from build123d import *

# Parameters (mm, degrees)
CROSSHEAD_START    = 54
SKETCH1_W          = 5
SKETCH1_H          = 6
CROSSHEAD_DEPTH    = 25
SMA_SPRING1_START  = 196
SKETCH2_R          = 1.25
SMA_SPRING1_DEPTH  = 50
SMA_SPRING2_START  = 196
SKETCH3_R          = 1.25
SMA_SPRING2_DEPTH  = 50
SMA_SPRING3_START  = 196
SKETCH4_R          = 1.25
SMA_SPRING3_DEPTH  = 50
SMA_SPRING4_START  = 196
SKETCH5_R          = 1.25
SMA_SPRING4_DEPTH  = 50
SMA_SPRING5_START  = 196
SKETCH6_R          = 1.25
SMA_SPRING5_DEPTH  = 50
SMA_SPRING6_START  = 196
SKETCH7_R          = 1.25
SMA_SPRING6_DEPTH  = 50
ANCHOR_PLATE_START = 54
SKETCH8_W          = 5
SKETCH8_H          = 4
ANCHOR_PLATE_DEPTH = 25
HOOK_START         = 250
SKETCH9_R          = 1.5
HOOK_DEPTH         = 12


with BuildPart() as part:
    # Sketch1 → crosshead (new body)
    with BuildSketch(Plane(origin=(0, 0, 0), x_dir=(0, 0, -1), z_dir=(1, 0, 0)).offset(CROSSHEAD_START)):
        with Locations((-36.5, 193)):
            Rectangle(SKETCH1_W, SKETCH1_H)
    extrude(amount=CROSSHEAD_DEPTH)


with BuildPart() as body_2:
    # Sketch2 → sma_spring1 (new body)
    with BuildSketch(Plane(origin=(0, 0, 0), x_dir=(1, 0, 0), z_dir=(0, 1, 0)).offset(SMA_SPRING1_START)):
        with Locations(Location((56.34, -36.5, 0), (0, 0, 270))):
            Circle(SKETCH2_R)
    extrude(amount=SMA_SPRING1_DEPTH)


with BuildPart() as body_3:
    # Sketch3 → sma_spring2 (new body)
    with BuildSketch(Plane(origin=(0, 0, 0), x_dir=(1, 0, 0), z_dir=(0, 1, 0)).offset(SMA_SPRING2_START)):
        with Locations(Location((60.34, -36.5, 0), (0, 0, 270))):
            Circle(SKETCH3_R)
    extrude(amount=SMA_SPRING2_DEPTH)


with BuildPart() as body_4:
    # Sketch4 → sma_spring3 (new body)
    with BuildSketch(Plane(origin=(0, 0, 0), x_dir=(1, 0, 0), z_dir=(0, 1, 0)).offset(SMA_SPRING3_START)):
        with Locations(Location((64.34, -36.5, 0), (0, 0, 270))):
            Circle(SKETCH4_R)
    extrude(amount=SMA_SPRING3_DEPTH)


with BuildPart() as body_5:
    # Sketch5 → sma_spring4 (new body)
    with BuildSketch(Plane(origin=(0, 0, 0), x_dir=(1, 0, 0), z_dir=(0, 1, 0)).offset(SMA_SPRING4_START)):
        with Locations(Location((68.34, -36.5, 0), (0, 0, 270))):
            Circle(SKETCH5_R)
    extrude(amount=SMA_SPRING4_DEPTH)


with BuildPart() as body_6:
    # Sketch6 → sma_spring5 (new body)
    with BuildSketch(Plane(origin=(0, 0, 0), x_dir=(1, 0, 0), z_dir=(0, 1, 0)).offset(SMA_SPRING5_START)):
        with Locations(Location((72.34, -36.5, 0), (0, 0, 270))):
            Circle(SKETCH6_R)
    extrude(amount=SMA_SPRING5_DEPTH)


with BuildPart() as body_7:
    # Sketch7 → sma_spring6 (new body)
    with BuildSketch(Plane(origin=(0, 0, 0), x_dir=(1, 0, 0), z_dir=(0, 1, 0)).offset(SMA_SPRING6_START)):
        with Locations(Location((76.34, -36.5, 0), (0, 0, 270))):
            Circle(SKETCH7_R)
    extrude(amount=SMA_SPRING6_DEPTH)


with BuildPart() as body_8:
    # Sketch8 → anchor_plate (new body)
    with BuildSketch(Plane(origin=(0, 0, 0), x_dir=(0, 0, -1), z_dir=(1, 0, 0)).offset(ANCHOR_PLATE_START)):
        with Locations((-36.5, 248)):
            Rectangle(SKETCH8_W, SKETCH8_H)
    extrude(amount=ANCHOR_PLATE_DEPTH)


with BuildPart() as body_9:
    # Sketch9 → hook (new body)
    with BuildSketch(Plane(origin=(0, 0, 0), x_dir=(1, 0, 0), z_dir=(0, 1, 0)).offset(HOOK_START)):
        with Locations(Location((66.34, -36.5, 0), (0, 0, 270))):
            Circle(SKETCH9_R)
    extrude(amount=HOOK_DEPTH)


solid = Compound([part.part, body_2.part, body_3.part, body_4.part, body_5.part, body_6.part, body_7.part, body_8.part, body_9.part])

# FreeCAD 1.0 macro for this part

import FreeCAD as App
import Part
import Sketcher

doc = App.newDocument("Part")
body = doc.addObject("PartDesign::Body", "Body")

# Sketch on YZ plane
sketch1 = body.newObject("Sketcher::SketchObject", "Sketch")
sketch1.AttachmentSupport = (doc.getObject("YZ_Plane"), [""])
sketch1.MapMode = "FlatFace"
sketch1.AttachmentOffset = App.Placement(App.Vector(0, 0, 54), App.Rotation())
sketch1.addGeometry(Part.LineSegment(App.Vector(196, 39, 0), App.Vector(190, 39, 0)), False)
sketch1.addGeometry(Part.LineSegment(App.Vector(190, 39, 0), App.Vector(190, 34, 0)), False)
sketch1.addGeometry(Part.LineSegment(App.Vector(190, 34, 0), App.Vector(196, 34, 0)), False)
sketch1.addGeometry(Part.LineSegment(App.Vector(196, 34, 0), App.Vector(196, 39, 0)), False)
sketch1.addConstraint(Sketcher.Constraint("Coincident", 0, 2, 1, 1))
sketch1.addConstraint(Sketcher.Constraint("Coincident", 1, 2, 2, 1))
sketch1.addConstraint(Sketcher.Constraint("Coincident", 2, 2, 3, 1))
sketch1.addConstraint(Sketcher.Constraint("Coincident", 3, 2, 0, 1))
sketch1.addConstraint(Sketcher.Constraint("Horizontal", 0))
sketch1.addConstraint(Sketcher.Constraint("Vertical", 1))
sketch1.addConstraint(Sketcher.Constraint("Horizontal", 2))
sketch1.addConstraint(Sketcher.Constraint("Vertical", 3))
sketch1.addConstraint(Sketcher.Constraint("DistanceX", 0, 2, 0, 1, 6.0))
sketch1.addConstraint(Sketcher.Constraint("DistanceY", 1, 2, 1, 1, 5.0))
sketch1.addConstraint(Sketcher.Constraint("DistanceX", -1, 1, 0, 2, 190.0))
sketch1.addConstraint(Sketcher.Constraint("DistanceY", -1, 1, 0, 2, 39.0))
pad1 = body.newObject("PartDesign::Pad", "Pad")
pad1.Profile = sketch1
pad1.Length = 25
body2 = doc.addObject("PartDesign::Body", "Body001")

# Sketch on XZ plane
sketch2 = body2.newObject("Sketcher::SketchObject", "Sketch001")
sketch2.AttachmentSupport = (doc.getObject("XZ_Plane001"), [""])
sketch2.MapMode = "FlatFace"
sketch2.AttachmentOffset = App.Placement(App.Vector(0, 0, -196), App.Rotation())
sketch2.addGeometry(Part.Circle(App.Vector(56.34, 36.5, 0), App.Vector(0, 0, 1), 1.25), False)
sketch2.addConstraint(Sketcher.Constraint("Diameter", 0, 2.5))
sketch2.addConstraint(Sketcher.Constraint("DistanceY", -1, 1, 0, 3, 36.5))
sketch2.addConstraint(Sketcher.Constraint("DistanceX", -1, 1, 0, 3, 56.34))
pad2 = body2.newObject("PartDesign::Pad", "Pad001")
pad2.Profile = sketch2
pad2.Length = 50
pad2.Reversed = True
body3 = doc.addObject("PartDesign::Body", "Body002")

# Sketch on XZ plane
sketch3 = body3.newObject("Sketcher::SketchObject", "Sketch002")
sketch3.AttachmentSupport = (doc.getObject("XZ_Plane002"), [""])
sketch3.MapMode = "FlatFace"
sketch3.AttachmentOffset = App.Placement(App.Vector(0, 0, -196), App.Rotation())
sketch3.addGeometry(Part.Circle(App.Vector(60.34, 36.5, 0), App.Vector(0, 0, 1), 1.25), False)
sketch3.addConstraint(Sketcher.Constraint("Diameter", 0, 2.5))
sketch3.addConstraint(Sketcher.Constraint("DistanceY", -1, 1, 0, 3, 36.5))
sketch3.addConstraint(Sketcher.Constraint("DistanceX", -1, 1, 0, 3, 60.34))
pad3 = body3.newObject("PartDesign::Pad", "Pad002")
pad3.Profile = sketch3
pad3.Length = 50
pad3.Reversed = True
body4 = doc.addObject("PartDesign::Body", "Body003")

# Sketch on XZ plane
sketch4 = body4.newObject("Sketcher::SketchObject", "Sketch003")
sketch4.AttachmentSupport = (doc.getObject("XZ_Plane003"), [""])
sketch4.MapMode = "FlatFace"
sketch4.AttachmentOffset = App.Placement(App.Vector(0, 0, -196), App.Rotation())
sketch4.addGeometry(Part.Circle(App.Vector(64.34, 36.5, 0), App.Vector(0, 0, 1), 1.25), False)
sketch4.addConstraint(Sketcher.Constraint("Diameter", 0, 2.5))
sketch4.addConstraint(Sketcher.Constraint("DistanceY", -1, 1, 0, 3, 36.5))
sketch4.addConstraint(Sketcher.Constraint("DistanceX", -1, 1, 0, 3, 64.34))
pad4 = body4.newObject("PartDesign::Pad", "Pad003")
pad4.Profile = sketch4
pad4.Length = 50
pad4.Reversed = True
body5 = doc.addObject("PartDesign::Body", "Body004")

# Sketch on XZ plane
sketch5 = body5.newObject("Sketcher::SketchObject", "Sketch004")
sketch5.AttachmentSupport = (doc.getObject("XZ_Plane004"), [""])
sketch5.MapMode = "FlatFace"
sketch5.AttachmentOffset = App.Placement(App.Vector(0, 0, -196), App.Rotation())
sketch5.addGeometry(Part.Circle(App.Vector(68.34, 36.5, 0), App.Vector(0, 0, 1), 1.25), False)
sketch5.addConstraint(Sketcher.Constraint("Diameter", 0, 2.5))
sketch5.addConstraint(Sketcher.Constraint("DistanceY", -1, 1, 0, 3, 36.5))
sketch5.addConstraint(Sketcher.Constraint("DistanceX", -1, 1, 0, 3, 68.34))
pad5 = body5.newObject("PartDesign::Pad", "Pad004")
pad5.Profile = sketch5
pad5.Length = 50
pad5.Reversed = True
body6 = doc.addObject("PartDesign::Body", "Body005")

# Sketch on XZ plane
sketch6 = body6.newObject("Sketcher::SketchObject", "Sketch005")
sketch6.AttachmentSupport = (doc.getObject("XZ_Plane005"), [""])
sketch6.MapMode = "FlatFace"
sketch6.AttachmentOffset = App.Placement(App.Vector(0, 0, -196), App.Rotation())
sketch6.addGeometry(Part.Circle(App.Vector(72.34, 36.5, 0), App.Vector(0, 0, 1), 1.25), False)
sketch6.addConstraint(Sketcher.Constraint("Diameter", 0, 2.5))
sketch6.addConstraint(Sketcher.Constraint("DistanceY", -1, 1, 0, 3, 36.5))
sketch6.addConstraint(Sketcher.Constraint("DistanceX", -1, 1, 0, 3, 72.34))
pad6 = body6.newObject("PartDesign::Pad", "Pad005")
pad6.Profile = sketch6
pad6.Length = 50
pad6.Reversed = True
body7 = doc.addObject("PartDesign::Body", "Body006")

# Sketch on XZ plane
sketch7 = body7.newObject("Sketcher::SketchObject", "Sketch006")
sketch7.AttachmentSupport = (doc.getObject("XZ_Plane006"), [""])
sketch7.MapMode = "FlatFace"
sketch7.AttachmentOffset = App.Placement(App.Vector(0, 0, -196), App.Rotation())
sketch7.addGeometry(Part.Circle(App.Vector(76.34, 36.5, 0), App.Vector(0, 0, 1), 1.25), False)
sketch7.addConstraint(Sketcher.Constraint("Diameter", 0, 2.5))
sketch7.addConstraint(Sketcher.Constraint("DistanceY", -1, 1, 0, 3, 36.5))
sketch7.addConstraint(Sketcher.Constraint("DistanceX", -1, 1, 0, 3, 76.34))
pad7 = body7.newObject("PartDesign::Pad", "Pad006")
pad7.Profile = sketch7
pad7.Length = 50
pad7.Reversed = True
body8 = doc.addObject("PartDesign::Body", "Body007")

# Sketch on YZ plane
sketch8 = body8.newObject("Sketcher::SketchObject", "Sketch007")
sketch8.AttachmentSupport = (doc.getObject("YZ_Plane007"), [""])
sketch8.MapMode = "FlatFace"
sketch8.AttachmentOffset = App.Placement(App.Vector(0, 0, 54), App.Rotation())
sketch8.addGeometry(Part.LineSegment(App.Vector(250, 39, 0), App.Vector(246, 39, 0)), False)
sketch8.addGeometry(Part.LineSegment(App.Vector(246, 39, 0), App.Vector(246, 34, 0)), False)
sketch8.addGeometry(Part.LineSegment(App.Vector(246, 34, 0), App.Vector(250, 34, 0)), False)
sketch8.addGeometry(Part.LineSegment(App.Vector(250, 34, 0), App.Vector(250, 39, 0)), False)
sketch8.addConstraint(Sketcher.Constraint("Coincident", 0, 2, 1, 1))
sketch8.addConstraint(Sketcher.Constraint("Coincident", 1, 2, 2, 1))
sketch8.addConstraint(Sketcher.Constraint("Coincident", 2, 2, 3, 1))
sketch8.addConstraint(Sketcher.Constraint("Coincident", 3, 2, 0, 1))
sketch8.addConstraint(Sketcher.Constraint("Horizontal", 0))
sketch8.addConstraint(Sketcher.Constraint("Vertical", 1))
sketch8.addConstraint(Sketcher.Constraint("Horizontal", 2))
sketch8.addConstraint(Sketcher.Constraint("Vertical", 3))
sketch8.addConstraint(Sketcher.Constraint("DistanceX", 0, 2, 0, 1, 4.0))
sketch8.addConstraint(Sketcher.Constraint("DistanceY", 1, 2, 1, 1, 5.0))
sketch8.addConstraint(Sketcher.Constraint("DistanceX", -1, 1, 0, 2, 246.0))
sketch8.addConstraint(Sketcher.Constraint("DistanceY", -1, 1, 0, 2, 39.0))
pad8 = body8.newObject("PartDesign::Pad", "Pad007")
pad8.Profile = sketch8
pad8.Length = 25
body9 = doc.addObject("PartDesign::Body", "Body008")

# Sketch on XZ plane
sketch9 = body9.newObject("Sketcher::SketchObject", "Sketch008")
sketch9.AttachmentSupport = (doc.getObject("XZ_Plane008"), [""])
sketch9.MapMode = "FlatFace"
sketch9.AttachmentOffset = App.Placement(App.Vector(0, 0, -250), App.Rotation())
sketch9.addGeometry(Part.Circle(App.Vector(66.34, 36.5, 0), App.Vector(0, 0, 1), 1.5), False)
sketch9.addConstraint(Sketcher.Constraint("Diameter", 0, 3.0))
sketch9.addConstraint(Sketcher.Constraint("DistanceY", -1, 1, 0, 3, 36.5))
sketch9.addConstraint(Sketcher.Constraint("DistanceX", -1, 1, 0, 3, 66.34))
pad9 = body9.newObject("PartDesign::Pad", "Pad008")
pad9.Profile = sketch9
pad9.Length = 12
pad9.Reversed = True

doc.recompute()
